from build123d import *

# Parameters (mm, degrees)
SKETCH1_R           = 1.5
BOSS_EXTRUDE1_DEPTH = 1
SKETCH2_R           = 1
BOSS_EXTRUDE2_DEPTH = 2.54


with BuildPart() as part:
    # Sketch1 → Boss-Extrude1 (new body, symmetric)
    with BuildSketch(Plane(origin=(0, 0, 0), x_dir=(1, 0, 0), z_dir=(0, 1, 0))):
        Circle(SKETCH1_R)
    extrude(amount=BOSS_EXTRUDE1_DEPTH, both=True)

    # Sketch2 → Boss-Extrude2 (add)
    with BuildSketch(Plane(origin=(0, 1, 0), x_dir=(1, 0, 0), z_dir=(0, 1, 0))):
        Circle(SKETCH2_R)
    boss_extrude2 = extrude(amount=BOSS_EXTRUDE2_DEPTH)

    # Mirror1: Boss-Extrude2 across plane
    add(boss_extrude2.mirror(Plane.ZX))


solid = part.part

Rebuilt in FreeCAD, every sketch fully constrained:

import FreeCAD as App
import Part
import Sketcher

V = App.Vector
Q = App.Units.Quantity

doc = App.newDocument("Part")
body = doc.addObject("PartDesign::Body", "Body")

# Sketch on XZ plane
sketch1 = doc.addObject("Sketcher::SketchObject", "Sketch")
body.addObject(sketch1)
sketch1.AttachmentSupport = (doc.XZ_Plane, [""])
sketch1.MapMode = "FlatFace"
sketch1.addGeometry(Part.Circle(V(0, 0, 0), V(0, 0, 1), 1.5), False)
sketch1.addConstraint([
    Sketcher.Constraint("Coincident", 0, 3, -1, 1),
    Sketcher.Constraint("Diameter", 0, Q("3 mm")),
])
pad1 = doc.addObject("PartDesign::Pad", "Pad")
body.addObject(pad1)
pad1.Profile = sketch1
pad1.Length = 2
pad1.Midplane = True

# Sketch on XZ plane
sketch2 = doc.addObject("Sketcher::SketchObject", "Sketch001")
body.addObject(sketch2)
sketch2.AttachmentSupport = (doc.XZ_Plane, [""])
sketch2.MapMode = "FlatFace"
sketch2.AttachmentOffset = App.Placement(V(0, 0, -1), App.Rotation())
sketch2.addGeometry(Part.Circle(V(0, 0, 0), V(0, 0, 1), 1), False)
sketch2.addConstraint([
    Sketcher.Constraint("Coincident", 0, 3, -1, 1),
    Sketcher.Constraint("Diameter", 0, Q("2 mm")),
])
pad2 = doc.addObject("PartDesign::Pad", "Pad001")
body.addObject(pad2)
pad2.Profile = sketch2
pad2.Length = 2.54
pad2.Reversed = True
doc.recompute()

mirrored = doc.addObject("PartDesign::Mirrored", "Mirrored")
body.addObject(mirrored)
mirrored.Originals = [pad2]
mirrored.MirrorPlane = (doc.XZ_Plane, [""])
body.Tip = mirrored

doc.recompute()
